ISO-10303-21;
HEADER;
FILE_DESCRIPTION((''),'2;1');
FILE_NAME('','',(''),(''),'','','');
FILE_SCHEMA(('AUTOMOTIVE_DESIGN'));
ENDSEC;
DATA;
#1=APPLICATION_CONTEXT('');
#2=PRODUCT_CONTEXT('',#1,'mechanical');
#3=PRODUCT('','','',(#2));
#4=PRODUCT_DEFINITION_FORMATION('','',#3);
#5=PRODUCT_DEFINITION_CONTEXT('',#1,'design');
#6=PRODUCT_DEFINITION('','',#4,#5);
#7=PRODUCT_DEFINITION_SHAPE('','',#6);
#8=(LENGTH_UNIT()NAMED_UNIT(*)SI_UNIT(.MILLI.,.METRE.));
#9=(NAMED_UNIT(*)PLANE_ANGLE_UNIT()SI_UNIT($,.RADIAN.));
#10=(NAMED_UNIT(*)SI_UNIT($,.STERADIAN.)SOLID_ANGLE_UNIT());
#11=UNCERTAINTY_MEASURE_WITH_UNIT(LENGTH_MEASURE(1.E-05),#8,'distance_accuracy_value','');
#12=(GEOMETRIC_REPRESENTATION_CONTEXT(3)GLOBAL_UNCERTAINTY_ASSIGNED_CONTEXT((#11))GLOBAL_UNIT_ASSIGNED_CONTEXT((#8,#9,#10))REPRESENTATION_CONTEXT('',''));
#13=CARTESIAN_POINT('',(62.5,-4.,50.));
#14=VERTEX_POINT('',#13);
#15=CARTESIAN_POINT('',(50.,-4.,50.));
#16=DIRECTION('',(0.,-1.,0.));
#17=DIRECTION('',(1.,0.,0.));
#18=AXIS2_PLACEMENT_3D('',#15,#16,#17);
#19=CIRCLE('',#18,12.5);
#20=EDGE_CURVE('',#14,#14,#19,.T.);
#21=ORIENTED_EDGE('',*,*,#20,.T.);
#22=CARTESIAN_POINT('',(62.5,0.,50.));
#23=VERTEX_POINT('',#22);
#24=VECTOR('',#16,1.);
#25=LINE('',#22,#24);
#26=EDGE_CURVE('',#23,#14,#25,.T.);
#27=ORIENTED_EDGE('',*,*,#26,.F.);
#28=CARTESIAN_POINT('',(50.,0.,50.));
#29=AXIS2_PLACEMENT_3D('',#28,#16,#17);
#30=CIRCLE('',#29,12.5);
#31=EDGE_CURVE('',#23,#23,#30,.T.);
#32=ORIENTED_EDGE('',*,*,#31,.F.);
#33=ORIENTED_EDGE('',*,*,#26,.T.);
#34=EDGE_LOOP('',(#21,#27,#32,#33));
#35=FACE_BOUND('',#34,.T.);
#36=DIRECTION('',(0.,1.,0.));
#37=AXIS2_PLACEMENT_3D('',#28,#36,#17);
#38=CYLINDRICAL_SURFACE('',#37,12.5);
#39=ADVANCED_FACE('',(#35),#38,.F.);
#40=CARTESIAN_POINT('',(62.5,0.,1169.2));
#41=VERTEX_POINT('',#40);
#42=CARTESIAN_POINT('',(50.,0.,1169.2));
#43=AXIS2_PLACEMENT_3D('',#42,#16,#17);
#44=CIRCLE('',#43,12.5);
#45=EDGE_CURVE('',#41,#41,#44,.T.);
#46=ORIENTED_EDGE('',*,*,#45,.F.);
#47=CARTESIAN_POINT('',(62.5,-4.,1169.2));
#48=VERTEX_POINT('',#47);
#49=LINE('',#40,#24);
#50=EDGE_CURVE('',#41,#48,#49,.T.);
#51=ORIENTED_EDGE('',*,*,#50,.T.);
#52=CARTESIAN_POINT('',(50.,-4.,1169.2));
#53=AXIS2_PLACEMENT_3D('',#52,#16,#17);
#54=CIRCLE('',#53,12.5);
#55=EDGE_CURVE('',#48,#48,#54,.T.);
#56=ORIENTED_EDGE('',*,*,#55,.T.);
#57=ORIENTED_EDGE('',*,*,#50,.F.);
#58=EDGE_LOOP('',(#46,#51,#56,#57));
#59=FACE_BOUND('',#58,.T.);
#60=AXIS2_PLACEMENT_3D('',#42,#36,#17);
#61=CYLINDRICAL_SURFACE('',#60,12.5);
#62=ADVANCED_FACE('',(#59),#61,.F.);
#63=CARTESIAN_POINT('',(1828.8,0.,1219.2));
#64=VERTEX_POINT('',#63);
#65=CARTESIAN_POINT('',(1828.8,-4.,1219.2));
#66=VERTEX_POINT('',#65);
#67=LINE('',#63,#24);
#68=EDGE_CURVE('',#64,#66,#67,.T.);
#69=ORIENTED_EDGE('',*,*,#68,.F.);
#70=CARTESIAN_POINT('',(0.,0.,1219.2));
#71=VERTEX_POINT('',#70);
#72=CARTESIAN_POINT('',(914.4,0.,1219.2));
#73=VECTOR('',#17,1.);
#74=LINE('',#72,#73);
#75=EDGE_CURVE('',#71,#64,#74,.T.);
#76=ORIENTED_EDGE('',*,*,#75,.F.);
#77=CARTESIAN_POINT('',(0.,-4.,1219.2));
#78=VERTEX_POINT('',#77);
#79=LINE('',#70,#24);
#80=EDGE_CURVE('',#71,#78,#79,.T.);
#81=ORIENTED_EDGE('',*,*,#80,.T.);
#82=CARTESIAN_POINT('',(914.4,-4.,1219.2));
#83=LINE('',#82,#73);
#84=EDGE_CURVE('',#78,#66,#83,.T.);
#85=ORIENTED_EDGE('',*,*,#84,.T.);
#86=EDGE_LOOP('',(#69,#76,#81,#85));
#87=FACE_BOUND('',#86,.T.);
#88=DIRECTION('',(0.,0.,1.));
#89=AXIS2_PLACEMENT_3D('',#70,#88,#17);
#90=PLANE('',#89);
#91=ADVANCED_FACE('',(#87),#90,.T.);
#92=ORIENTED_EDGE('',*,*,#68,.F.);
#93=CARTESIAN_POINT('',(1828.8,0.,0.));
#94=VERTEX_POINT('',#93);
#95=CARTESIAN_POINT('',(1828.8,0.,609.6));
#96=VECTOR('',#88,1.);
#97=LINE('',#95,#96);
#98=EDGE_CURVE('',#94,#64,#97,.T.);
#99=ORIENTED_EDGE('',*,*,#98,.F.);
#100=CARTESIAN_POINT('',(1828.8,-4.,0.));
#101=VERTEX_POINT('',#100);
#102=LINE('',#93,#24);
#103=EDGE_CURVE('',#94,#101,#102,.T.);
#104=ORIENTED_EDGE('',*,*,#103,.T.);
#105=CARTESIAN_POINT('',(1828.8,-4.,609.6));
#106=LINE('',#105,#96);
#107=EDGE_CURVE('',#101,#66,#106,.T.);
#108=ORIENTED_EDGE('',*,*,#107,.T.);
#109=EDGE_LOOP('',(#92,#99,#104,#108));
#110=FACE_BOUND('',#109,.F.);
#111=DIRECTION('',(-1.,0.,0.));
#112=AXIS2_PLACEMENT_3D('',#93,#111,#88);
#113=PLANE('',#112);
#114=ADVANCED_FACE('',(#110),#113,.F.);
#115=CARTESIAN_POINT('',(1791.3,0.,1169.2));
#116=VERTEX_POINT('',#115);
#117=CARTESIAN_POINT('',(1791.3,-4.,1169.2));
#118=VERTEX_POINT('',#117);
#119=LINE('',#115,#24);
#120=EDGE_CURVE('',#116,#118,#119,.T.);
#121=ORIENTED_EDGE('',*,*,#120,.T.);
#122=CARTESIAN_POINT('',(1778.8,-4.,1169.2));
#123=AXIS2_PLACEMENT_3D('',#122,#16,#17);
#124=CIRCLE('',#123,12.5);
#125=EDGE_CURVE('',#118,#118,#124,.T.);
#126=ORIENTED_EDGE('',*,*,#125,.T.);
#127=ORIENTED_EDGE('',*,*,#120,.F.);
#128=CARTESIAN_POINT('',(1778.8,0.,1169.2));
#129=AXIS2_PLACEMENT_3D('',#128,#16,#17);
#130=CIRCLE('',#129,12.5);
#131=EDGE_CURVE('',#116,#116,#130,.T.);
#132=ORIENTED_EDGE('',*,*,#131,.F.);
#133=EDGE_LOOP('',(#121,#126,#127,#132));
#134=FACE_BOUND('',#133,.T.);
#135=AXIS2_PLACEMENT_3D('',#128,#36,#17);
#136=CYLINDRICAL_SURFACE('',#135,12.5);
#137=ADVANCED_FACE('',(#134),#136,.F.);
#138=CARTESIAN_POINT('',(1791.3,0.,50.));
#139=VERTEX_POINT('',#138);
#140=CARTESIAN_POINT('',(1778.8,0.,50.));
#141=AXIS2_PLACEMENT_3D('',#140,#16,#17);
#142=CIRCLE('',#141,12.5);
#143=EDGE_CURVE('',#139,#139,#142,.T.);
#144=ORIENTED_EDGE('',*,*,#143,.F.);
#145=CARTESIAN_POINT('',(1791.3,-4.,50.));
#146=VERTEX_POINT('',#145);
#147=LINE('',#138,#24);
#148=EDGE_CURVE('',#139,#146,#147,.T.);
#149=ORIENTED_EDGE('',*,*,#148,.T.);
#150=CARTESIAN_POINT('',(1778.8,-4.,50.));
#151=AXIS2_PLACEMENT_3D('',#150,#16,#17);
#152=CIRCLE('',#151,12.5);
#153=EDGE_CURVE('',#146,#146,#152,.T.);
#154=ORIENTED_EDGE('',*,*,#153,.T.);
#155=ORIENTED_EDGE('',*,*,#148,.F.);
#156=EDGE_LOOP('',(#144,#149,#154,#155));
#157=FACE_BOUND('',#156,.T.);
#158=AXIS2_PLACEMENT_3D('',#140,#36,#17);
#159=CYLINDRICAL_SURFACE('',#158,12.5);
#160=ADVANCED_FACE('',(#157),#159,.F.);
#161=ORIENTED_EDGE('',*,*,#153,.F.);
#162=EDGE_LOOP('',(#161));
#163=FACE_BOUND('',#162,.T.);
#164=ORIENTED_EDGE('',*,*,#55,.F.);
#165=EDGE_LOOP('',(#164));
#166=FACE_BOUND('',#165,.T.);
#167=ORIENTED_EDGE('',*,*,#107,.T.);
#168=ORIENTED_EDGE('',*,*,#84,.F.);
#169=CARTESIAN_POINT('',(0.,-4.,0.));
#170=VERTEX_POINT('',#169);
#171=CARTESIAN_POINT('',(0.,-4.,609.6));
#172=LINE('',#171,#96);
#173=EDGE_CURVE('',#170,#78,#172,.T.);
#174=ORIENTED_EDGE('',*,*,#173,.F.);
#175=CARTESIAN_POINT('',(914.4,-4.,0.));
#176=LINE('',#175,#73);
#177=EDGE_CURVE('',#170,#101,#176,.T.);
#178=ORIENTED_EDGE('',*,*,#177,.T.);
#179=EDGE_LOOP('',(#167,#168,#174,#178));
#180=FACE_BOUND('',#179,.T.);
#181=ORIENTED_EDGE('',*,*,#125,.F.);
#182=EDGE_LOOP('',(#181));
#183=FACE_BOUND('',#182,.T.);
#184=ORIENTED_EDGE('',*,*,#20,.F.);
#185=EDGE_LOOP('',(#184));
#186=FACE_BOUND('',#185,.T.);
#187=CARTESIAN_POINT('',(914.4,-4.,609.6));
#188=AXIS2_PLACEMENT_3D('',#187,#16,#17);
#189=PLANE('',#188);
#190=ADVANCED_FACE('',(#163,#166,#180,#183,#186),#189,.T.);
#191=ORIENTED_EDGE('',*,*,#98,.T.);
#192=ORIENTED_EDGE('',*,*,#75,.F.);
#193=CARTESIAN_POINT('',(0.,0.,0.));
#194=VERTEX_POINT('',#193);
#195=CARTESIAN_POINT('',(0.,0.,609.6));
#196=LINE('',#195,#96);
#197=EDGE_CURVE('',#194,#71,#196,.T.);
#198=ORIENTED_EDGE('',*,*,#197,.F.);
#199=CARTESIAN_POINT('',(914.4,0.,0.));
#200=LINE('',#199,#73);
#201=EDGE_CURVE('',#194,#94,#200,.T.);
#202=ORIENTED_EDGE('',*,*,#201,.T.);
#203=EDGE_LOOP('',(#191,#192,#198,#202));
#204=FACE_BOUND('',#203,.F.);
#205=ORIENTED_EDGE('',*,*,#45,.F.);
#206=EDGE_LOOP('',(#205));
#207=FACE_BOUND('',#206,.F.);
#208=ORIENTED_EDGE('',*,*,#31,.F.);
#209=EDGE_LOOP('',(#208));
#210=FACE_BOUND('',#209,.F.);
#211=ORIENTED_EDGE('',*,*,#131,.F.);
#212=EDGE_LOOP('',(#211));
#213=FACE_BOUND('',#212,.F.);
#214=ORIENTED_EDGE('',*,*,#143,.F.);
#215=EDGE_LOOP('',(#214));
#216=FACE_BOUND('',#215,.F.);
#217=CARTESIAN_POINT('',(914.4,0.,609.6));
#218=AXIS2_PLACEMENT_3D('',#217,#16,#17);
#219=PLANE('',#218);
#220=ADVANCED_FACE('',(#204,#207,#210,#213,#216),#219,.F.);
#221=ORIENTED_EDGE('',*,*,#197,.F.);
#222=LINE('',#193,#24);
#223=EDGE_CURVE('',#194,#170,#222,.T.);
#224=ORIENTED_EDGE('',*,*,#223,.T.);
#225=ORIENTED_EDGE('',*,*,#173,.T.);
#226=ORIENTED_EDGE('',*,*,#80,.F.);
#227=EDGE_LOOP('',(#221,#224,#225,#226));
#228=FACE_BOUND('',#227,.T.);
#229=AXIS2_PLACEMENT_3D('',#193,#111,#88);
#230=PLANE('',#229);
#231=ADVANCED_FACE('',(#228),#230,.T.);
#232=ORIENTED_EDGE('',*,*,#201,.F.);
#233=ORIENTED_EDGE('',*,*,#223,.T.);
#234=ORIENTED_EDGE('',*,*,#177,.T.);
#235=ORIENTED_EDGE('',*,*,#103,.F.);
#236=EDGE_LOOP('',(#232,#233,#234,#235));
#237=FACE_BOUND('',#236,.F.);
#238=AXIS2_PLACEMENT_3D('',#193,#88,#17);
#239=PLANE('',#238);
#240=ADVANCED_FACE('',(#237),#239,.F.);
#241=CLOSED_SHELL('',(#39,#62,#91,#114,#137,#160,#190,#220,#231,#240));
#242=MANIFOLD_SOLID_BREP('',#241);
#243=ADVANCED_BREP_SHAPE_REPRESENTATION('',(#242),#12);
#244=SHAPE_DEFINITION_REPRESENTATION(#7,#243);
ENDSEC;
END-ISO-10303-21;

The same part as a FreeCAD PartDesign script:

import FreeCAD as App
import Part
import Sketcher

V = App.Vector


def add_polygon(sketch, points):
    """Adds a closed chain of lines whose ends are joined by coincident constraints."""
    first, n = sketch.GeometryCount, len(points)
    for a, b in zip(points, points[1:] + points[:1]):
        sketch.addGeometry(Part.LineSegment(App.Vector(*a, 0), App.Vector(*b, 0)), False)
    for i in range(n):
        sketch.addConstraint(Sketcher.Constraint("Coincident", first + i, 2, first + (i + 1) % n, 1))

doc = App.newDocument("Part")
body = doc.addObject("PartDesign::Body", "Body")

# Sketch on XZ plane
sketch1 = doc.addObject("Sketcher::SketchObject", "Sketch")
body.addObject(sketch1)
sketch1.AttachmentSupport = (doc.XZ_Plane, [""])
sketch1.MapMode = "FlatFace"
add_polygon(sketch1, [(0, 1219), (0, 0), (1829, 0), (1829, 1219)])  # lines 0-3
sketch1.addGeometry(Part.Circle(V(50, 50, 0), V(0, 0, 1), 12), False)  # 4
sketch1.addGeometry(Part.Circle(V(1779, 50, 0), V(0, 0, 1), 12), False)  # 5
sketch1.addGeometry(Part.Circle(V(50, 1169, 0), V(0, 0, 1), 12), False)  # 6
sketch1.addGeometry(Part.Circle(V(1779, 1169, 0), V(0, 0, 1), 12), False)  # 7
sketch1.addConstraint([
    Sketcher.Constraint("Vertical", 0),
    Sketcher.Constraint("Horizontal", 1),
    Sketcher.Constraint("Vertical", 2),
    Sketcher.Constraint("Horizontal", 3),
    Sketcher.Constraint("Coincident", 0, 2, -1, 1),
    Sketcher.Constraint("Equal", 4, 5),
    Sketcher.Constraint("Equal", 5, 6),
    Sketcher.Constraint("Equal", 6, 7),
    Sketcher.Constraint("Horizontal", 4, 3, 5, 3),
    Sketcher.Constraint("Horizontal", 6, 3, 7, 3),
    Sketcher.Constraint("Vertical", 4, 3, 6, 3),
    Sketcher.Constraint("Vertical", 5, 3, 7, 3),
    Sketcher.Constraint("Diameter", 4, 25.0),
    Sketcher.Constraint("DistanceX", 1, 1, 1, 2, 1828.8),
    Sketcher.Constraint("DistanceY", 0, 2, 0, 1, 1219.2),
    Sketcher.Constraint("DistanceX", -1, 1, 4, 3, 50.0),
    Sketcher.Constraint("DistanceY", -1, 1, 4, 3, 50.0),
    Sketcher.Constraint("DistanceX", 5, 3, 1, 2, 50.0),
    Sketcher.Constraint("DistanceY", 7, 3, 2, 2, 50.0),
])
pad1 = doc.addObject("PartDesign::Pad", "Pad")
body.addObject(pad1)
pad1.Profile = sketch1
pad1.Length = 4

doc.recompute()
